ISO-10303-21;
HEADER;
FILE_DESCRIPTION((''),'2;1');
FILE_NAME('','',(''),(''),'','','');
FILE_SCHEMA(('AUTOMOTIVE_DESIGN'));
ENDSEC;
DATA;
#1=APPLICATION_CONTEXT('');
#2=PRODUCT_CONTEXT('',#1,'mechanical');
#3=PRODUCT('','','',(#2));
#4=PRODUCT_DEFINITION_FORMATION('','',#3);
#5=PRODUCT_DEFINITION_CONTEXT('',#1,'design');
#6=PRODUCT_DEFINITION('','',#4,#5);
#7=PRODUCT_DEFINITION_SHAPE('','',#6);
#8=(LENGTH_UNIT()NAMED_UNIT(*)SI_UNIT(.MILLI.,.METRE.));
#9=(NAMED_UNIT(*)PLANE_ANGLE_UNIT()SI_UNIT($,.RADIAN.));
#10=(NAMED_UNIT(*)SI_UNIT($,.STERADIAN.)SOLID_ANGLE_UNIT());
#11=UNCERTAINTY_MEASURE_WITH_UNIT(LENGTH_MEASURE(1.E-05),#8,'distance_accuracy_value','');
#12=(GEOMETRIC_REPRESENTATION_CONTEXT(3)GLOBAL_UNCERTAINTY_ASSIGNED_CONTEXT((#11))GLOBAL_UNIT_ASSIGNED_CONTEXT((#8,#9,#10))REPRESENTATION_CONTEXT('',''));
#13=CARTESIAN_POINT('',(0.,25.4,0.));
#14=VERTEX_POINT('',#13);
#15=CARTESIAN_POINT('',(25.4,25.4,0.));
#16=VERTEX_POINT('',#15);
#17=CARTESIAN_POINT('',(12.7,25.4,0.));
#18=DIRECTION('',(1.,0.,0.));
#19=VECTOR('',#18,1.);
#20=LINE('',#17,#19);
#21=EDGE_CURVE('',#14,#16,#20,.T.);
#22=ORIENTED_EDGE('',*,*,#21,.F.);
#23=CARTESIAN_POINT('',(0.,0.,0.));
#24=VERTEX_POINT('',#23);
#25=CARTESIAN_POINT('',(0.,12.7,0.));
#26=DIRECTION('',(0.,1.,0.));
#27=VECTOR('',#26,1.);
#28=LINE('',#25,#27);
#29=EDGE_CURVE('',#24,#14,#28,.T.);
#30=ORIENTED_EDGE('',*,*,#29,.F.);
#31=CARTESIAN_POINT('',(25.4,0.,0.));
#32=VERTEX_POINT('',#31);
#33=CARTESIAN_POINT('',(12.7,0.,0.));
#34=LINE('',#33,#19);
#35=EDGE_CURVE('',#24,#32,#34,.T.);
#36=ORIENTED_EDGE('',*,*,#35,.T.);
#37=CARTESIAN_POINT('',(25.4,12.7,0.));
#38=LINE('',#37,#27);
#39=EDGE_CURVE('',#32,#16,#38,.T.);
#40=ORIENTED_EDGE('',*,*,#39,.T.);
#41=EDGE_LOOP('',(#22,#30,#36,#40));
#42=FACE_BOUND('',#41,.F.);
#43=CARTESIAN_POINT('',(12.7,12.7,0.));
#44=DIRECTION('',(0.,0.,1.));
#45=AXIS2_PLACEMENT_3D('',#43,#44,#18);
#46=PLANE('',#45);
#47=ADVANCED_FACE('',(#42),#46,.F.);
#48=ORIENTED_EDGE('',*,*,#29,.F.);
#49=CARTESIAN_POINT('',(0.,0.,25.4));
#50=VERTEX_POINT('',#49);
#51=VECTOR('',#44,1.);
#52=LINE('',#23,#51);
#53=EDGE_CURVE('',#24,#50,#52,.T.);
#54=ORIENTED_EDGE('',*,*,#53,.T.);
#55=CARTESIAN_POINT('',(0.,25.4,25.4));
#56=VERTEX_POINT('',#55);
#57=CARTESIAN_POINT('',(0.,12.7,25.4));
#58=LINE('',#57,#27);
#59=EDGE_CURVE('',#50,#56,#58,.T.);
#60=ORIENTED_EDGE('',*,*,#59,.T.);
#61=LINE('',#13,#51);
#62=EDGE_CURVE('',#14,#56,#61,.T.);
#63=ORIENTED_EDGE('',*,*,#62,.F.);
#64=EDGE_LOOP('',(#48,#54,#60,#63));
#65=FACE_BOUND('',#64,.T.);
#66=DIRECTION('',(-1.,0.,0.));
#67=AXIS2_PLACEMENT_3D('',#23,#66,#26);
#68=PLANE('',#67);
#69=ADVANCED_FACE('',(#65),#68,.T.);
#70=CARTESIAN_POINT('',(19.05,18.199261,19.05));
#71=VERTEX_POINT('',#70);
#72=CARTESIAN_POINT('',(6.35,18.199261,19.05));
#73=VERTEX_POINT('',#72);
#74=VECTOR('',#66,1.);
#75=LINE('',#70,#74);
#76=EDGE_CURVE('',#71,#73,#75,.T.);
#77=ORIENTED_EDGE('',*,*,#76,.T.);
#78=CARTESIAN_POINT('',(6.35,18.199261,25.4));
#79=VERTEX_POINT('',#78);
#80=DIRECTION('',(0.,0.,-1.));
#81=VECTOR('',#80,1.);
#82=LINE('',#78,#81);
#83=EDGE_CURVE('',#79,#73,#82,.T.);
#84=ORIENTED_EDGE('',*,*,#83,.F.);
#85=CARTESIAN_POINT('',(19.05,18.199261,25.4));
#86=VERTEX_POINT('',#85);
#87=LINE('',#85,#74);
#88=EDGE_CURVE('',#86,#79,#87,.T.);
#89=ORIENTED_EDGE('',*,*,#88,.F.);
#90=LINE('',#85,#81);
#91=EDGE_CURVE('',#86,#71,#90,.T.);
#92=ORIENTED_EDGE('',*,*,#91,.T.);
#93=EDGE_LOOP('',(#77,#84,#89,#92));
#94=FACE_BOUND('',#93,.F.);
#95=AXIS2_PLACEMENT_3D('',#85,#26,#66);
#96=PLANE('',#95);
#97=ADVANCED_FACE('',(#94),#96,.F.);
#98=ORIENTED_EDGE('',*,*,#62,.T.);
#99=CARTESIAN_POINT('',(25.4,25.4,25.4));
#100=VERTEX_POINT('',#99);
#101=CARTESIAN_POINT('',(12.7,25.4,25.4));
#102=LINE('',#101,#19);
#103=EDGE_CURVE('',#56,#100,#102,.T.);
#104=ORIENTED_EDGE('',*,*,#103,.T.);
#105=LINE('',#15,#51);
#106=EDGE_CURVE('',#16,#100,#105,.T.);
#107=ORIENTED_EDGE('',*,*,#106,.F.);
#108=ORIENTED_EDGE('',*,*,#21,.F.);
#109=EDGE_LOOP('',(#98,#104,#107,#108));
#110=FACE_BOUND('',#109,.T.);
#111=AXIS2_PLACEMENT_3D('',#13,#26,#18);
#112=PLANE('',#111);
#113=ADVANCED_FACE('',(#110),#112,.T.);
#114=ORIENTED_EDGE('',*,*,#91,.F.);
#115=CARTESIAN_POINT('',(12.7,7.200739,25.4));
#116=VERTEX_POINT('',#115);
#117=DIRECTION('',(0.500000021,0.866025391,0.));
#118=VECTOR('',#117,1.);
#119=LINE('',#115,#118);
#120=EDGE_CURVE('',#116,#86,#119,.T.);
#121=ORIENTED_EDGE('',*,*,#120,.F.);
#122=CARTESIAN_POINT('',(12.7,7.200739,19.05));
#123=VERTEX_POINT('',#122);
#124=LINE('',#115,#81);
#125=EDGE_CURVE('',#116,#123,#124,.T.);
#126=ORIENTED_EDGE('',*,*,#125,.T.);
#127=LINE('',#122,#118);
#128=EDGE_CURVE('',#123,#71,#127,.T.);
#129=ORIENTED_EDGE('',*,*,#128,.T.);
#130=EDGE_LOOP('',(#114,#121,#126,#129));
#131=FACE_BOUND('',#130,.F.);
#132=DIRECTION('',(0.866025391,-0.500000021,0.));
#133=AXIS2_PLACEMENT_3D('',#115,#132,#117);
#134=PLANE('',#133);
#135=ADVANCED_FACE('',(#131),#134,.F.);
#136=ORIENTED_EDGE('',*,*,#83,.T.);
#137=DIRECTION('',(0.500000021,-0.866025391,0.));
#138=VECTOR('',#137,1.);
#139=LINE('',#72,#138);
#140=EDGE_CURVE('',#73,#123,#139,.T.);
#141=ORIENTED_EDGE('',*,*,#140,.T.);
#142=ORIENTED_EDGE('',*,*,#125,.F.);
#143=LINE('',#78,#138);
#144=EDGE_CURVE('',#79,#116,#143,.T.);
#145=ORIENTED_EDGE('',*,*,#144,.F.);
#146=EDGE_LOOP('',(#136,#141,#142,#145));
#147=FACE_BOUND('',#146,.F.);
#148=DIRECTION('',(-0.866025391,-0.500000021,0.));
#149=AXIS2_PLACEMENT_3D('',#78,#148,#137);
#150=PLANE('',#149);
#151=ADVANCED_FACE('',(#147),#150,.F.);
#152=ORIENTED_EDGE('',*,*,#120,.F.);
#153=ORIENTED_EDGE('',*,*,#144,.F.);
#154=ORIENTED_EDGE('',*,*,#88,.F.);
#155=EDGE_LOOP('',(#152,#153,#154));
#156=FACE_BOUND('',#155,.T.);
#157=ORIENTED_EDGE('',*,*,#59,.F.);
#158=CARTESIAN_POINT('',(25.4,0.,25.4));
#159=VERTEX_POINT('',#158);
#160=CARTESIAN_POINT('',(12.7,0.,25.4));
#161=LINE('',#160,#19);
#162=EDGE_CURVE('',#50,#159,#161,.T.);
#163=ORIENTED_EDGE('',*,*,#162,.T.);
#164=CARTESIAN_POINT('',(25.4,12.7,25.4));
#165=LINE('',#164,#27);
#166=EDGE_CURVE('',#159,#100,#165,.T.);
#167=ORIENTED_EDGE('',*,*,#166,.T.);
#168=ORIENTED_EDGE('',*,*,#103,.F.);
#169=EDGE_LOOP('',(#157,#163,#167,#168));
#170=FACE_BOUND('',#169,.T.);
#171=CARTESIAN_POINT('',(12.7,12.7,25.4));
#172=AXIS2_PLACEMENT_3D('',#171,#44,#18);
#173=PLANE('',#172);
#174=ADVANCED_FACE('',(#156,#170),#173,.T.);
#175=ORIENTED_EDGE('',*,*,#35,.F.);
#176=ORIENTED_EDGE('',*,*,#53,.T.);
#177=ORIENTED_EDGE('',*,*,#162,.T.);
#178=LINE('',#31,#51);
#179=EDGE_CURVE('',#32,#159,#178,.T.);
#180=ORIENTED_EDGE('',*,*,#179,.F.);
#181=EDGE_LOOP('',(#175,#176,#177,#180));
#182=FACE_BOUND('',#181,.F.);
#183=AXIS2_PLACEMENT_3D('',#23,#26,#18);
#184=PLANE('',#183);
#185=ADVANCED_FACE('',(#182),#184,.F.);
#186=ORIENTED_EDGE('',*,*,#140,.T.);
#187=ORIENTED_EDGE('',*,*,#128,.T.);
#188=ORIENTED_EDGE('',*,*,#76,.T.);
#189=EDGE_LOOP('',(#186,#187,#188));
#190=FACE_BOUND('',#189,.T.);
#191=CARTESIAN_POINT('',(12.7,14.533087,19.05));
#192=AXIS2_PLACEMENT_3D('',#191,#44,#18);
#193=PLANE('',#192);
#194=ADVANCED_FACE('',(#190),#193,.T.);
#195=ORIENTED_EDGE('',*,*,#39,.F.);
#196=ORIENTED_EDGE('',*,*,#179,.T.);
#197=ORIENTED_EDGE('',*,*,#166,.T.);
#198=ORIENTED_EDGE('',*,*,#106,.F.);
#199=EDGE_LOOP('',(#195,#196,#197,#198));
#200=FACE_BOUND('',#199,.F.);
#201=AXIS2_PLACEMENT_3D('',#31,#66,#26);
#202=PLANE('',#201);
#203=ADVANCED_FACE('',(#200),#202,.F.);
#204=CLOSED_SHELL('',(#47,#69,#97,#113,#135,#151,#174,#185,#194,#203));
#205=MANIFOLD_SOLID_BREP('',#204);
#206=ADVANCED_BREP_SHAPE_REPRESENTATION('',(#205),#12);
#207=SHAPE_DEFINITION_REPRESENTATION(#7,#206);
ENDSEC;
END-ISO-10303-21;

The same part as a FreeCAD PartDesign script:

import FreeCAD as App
import Part
import Sketcher

V = App.Vector
Q = App.Units.Quantity


def add_polygon(sketch, points):
    """Adds a closed chain of lines whose ends are joined by coincident constraints."""
    first, n = sketch.GeometryCount, len(points)
    for a, b in zip(points, points[1:] + points[:1]):
        sketch.addGeometry(Part.LineSegment(App.Vector(*a, 0), App.Vector(*b, 0)), False)
    for i in range(n):
        sketch.addConstraint(Sketcher.Constraint("Coincident", first + i, 2, first + (i + 1) % n, 1))

doc = App.newDocument("Part")
params = doc.addObject("Spreadsheet::Sheet", "Params")
for row, (alias, value) in enumerate([
    ("sketch1_width", "1 in"),
    ("pad1_length", "1 in"),
    ("sketch2_width", "0.5 in"),
    ("pocket1_length", "0.25 in"),
], start=1):
    params.set(f"A{row}", alias)
    params.set(f"B{row}", "=" + value)
    params.setAlias(f"B{row}", alias)

body = doc.addObject("PartDesign::Body", "Body")

# Sketch on XY plane
sketch1 = body.newObject("Sketcher::SketchObject", "Sketch")
sketch1.AttachmentSupport = (doc.getObject("XY_Plane"), [""])
sketch1.MapMode = "FlatFace"
add_polygon(sketch1, [(0, 25.4), (0, 0), (25.4, 0), (25.4, 25.4)])  # lines 0-3
sketch1.addConstraint([
    Sketcher.Constraint("Vertical", 0),
    Sketcher.Constraint("Horizontal", 1),
    Sketcher.Constraint("Vertical", 2),
    Sketcher.Constraint("Horizontal", 3),
    Sketcher.Constraint("Coincident", 0, 2, -1, 1),
    Sketcher.Constraint("Equal", 3, 0),
    Sketcher.Constraint("DistanceX", 1, 1, 1, 2, Q("1 in")),
])
sketch1.setExpression("Constraints[10]", "Params.sketch1_width")
pad1 = body.newObject("PartDesign::Pad", "Pad")
pad1.Profile = sketch1
pad1.setExpression("Length", "Params.pad1_length")

# Sketch on XY plane
sketch2 = body.newObject("Sketcher::SketchObject", "Sketch001")
sketch2.AttachmentSupport = (doc.getObject("XY_Plane"), [""])
sketch2.MapMode = "FlatFace"
sketch2.AttachmentOffset = App.Placement(V(0, 0, 1 * 25.4), App.Rotation())
add_polygon(sketch2, [(19.05, 18.199261), (6.35, 18.199261), (12.7, 7.200739)])  # lines 0-2
sketch2.addConstraint([
    Sketcher.Constraint("Horizontal", 0),
    Sketcher.Constraint("Equal", 1, 2),
    Sketcher.Constraint("DistanceX", 0, 2, 0, 1, Q("0.5 in")),
    Sketcher.Constraint("Angle", 1, Q("-59.999999 deg")),
    Sketcher.Constraint("DistanceX", -1, 1, 1, 2, Q("0.5 in")),
    Sketcher.Constraint("DistanceY", -1, 1, 0, 2, 18.199261),
])
sketch2.setExpression("Constraints[5]", "Params.sketch2_width")
pocket1 = body.newObject("PartDesign::Pocket", "Pocket")
pocket1.Profile = sketch2
pocket1.setExpression("Length", "Params.pocket1_length")

doc.recompute()
